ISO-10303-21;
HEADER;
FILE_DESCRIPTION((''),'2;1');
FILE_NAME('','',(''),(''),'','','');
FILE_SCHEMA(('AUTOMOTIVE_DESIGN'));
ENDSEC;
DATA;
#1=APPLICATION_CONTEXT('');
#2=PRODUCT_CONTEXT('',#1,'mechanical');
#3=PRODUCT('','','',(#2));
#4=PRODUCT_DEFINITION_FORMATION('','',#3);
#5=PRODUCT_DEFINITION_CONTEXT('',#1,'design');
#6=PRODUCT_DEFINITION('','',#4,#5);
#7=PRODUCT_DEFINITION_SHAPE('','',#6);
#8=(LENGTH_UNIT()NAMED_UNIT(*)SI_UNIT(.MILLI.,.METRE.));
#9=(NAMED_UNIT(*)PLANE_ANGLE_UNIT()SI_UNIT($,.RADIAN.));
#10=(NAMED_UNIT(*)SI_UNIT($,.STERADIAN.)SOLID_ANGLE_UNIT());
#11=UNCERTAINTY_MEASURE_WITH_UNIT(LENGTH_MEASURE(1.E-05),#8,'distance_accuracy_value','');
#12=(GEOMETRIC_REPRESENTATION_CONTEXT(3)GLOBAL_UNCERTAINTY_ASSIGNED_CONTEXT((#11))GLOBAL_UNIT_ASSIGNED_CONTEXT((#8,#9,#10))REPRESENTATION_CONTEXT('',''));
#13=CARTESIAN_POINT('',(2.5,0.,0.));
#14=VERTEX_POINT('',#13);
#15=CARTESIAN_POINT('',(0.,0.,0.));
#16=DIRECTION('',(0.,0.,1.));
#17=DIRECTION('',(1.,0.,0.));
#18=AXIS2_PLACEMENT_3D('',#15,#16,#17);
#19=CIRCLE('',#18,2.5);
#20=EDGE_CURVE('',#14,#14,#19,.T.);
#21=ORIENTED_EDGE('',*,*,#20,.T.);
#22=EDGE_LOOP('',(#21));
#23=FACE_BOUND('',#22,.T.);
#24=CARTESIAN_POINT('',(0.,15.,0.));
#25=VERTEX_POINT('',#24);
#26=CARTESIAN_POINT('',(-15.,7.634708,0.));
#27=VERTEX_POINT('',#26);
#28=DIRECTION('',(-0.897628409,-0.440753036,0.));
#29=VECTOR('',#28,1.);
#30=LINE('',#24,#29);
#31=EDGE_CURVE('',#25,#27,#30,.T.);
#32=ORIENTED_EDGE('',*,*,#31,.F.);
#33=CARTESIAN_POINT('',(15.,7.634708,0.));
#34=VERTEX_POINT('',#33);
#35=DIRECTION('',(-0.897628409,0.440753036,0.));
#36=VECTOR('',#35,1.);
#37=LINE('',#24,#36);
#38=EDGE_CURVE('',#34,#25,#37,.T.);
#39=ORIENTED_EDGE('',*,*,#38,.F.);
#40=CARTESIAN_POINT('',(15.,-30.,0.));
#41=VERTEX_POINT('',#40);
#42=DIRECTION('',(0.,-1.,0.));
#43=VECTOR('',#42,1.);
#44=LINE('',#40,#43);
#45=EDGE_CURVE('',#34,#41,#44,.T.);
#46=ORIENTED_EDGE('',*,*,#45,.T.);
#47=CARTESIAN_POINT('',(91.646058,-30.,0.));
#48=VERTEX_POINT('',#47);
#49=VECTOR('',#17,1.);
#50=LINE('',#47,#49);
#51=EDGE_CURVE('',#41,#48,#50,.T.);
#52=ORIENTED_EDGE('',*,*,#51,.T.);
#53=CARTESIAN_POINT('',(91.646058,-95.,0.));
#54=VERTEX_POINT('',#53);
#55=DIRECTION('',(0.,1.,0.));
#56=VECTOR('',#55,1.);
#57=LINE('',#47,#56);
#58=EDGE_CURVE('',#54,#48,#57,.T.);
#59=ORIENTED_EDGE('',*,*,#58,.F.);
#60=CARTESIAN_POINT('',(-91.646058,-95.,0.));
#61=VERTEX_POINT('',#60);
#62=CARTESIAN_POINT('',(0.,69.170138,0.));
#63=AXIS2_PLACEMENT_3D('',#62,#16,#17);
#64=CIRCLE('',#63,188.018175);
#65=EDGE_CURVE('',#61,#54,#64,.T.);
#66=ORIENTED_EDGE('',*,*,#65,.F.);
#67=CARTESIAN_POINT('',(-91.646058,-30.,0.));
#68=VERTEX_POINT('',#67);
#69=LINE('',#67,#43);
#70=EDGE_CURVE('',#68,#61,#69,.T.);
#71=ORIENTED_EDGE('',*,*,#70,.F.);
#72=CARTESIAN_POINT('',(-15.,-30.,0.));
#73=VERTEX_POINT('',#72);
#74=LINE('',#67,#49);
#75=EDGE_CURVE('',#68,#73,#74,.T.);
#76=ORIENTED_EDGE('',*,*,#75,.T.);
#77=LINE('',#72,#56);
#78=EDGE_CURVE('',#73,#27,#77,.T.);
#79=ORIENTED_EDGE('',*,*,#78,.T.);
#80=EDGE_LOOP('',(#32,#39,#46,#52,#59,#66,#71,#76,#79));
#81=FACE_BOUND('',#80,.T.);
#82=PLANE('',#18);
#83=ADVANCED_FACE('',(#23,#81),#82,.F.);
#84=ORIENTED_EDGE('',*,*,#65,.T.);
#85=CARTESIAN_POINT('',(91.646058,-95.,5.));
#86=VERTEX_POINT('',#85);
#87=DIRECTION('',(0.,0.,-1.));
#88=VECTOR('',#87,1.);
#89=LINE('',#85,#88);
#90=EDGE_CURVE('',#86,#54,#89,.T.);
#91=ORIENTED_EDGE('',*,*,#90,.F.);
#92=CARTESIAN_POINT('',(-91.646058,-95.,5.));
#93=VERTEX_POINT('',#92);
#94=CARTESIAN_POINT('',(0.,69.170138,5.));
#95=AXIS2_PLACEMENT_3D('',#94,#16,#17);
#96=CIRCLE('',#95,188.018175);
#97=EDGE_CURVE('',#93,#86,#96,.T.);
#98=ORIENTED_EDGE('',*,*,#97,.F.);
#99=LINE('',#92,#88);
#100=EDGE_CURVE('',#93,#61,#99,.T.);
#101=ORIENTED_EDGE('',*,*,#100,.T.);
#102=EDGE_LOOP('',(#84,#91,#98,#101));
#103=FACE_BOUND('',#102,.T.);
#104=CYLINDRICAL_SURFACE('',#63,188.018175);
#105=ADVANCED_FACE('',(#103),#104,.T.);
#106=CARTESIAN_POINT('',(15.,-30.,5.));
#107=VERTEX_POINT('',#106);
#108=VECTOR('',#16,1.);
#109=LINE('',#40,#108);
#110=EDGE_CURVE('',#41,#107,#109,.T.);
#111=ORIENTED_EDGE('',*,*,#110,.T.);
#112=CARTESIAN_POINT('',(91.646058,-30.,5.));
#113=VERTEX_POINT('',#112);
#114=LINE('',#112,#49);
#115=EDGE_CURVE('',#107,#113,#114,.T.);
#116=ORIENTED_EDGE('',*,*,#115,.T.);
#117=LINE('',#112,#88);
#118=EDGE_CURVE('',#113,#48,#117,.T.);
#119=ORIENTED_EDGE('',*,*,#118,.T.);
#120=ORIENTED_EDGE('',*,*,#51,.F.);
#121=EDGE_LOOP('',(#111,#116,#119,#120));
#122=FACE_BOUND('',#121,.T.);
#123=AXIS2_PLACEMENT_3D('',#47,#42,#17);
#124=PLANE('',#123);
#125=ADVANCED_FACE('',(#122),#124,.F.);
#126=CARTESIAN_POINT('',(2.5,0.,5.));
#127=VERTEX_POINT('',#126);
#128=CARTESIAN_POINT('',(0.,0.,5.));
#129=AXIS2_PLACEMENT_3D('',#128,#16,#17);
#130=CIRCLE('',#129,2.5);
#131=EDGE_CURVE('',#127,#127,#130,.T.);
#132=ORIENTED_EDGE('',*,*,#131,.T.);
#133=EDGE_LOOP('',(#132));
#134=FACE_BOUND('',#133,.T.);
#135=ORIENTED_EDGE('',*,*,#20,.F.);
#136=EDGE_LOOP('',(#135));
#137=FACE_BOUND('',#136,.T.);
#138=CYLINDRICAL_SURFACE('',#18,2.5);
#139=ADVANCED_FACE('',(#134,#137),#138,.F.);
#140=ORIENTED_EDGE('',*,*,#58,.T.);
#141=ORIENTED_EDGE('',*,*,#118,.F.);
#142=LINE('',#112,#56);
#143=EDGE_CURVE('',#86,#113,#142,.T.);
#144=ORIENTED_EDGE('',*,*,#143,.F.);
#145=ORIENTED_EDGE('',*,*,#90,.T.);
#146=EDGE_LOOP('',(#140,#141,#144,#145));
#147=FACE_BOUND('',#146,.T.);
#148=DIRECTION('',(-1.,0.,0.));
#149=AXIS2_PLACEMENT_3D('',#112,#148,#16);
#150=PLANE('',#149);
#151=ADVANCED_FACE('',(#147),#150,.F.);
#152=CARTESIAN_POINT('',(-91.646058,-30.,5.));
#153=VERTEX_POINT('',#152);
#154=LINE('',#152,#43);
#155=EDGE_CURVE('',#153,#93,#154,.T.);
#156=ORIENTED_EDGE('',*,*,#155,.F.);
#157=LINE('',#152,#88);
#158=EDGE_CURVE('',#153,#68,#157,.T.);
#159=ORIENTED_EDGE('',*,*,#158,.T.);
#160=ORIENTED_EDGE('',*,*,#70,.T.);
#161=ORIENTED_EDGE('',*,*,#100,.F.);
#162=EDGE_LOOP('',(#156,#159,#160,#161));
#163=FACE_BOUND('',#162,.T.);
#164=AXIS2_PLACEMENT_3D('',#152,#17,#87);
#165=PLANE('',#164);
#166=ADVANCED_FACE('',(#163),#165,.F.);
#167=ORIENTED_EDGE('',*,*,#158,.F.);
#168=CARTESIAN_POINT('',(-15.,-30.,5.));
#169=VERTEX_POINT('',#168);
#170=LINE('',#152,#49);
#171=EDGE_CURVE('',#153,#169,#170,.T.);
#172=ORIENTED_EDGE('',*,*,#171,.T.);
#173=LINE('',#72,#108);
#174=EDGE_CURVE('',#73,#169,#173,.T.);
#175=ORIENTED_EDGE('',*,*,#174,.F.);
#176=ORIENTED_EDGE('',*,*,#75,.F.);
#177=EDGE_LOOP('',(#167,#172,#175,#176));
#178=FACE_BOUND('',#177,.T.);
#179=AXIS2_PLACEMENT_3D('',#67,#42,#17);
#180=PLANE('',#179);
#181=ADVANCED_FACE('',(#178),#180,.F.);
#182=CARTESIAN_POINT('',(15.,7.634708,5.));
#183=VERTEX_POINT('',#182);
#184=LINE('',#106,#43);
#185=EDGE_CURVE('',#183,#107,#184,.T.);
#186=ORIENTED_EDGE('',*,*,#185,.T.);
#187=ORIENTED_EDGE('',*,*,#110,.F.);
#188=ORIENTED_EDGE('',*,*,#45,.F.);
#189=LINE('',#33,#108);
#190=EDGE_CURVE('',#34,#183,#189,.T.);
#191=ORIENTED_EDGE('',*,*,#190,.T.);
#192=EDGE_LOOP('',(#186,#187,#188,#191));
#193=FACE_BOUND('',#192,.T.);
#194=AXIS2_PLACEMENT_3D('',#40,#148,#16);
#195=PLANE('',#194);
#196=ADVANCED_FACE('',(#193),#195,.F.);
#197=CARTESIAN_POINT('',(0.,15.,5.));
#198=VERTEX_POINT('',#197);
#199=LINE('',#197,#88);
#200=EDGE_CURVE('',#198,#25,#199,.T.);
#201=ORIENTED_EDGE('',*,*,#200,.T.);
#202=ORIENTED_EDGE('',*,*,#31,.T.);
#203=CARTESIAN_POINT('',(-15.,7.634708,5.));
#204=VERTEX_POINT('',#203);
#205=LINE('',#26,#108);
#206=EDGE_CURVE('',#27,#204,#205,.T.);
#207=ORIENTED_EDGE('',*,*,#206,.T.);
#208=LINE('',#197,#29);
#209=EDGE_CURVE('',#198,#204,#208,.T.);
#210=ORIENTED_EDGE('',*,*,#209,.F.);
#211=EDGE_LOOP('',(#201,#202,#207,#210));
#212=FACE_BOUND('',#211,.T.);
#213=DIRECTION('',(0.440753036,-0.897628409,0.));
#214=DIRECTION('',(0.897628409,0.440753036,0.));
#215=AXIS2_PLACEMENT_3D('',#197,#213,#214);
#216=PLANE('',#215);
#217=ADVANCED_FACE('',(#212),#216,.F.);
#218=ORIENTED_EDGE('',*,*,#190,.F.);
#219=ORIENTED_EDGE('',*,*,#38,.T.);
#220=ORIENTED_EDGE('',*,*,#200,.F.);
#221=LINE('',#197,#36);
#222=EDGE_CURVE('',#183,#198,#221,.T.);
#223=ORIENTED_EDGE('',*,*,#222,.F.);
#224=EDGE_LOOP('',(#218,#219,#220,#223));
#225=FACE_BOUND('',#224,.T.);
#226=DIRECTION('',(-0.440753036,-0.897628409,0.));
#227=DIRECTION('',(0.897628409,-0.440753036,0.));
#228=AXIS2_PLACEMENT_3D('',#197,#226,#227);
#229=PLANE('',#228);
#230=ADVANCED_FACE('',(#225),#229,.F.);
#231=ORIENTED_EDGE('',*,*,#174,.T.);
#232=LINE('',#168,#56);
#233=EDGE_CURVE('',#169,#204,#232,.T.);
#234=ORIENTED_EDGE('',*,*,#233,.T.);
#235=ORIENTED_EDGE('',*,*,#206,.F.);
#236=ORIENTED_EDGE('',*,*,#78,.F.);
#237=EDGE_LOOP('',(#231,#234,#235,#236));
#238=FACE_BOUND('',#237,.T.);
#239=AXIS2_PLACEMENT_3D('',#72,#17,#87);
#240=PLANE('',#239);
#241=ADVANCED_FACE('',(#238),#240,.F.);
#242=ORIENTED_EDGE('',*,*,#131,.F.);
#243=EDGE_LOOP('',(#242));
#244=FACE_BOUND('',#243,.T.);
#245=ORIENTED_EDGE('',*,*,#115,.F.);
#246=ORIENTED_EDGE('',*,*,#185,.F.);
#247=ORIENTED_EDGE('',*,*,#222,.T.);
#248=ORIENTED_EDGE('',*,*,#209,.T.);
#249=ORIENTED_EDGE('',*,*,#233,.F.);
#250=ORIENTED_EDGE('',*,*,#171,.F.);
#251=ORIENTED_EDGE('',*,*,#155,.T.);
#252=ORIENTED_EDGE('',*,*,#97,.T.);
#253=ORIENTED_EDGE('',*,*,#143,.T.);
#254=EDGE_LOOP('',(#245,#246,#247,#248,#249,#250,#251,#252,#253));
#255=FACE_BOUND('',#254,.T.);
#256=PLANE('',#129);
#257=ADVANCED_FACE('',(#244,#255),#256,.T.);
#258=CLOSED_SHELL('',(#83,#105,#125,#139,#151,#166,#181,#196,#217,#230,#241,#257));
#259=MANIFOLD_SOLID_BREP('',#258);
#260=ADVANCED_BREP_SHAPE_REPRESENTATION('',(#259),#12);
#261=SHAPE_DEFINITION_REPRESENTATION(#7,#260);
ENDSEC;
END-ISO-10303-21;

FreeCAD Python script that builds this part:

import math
import FreeCAD as App
import Part
import Sketcher

V = App.Vector
Q = App.Units.Quantity


def add_polygon(sketch, points):
    """Adds a closed chain of lines whose ends are joined by coincident constraints."""
    first, n = sketch.GeometryCount, len(points)
    for a, b in zip(points, points[1:] + points[:1]):
        sketch.addGeometry(Part.LineSegment(App.Vector(*a, 0), App.Vector(*b, 0)), False)
    for i in range(n):
        sketch.addConstraint(Sketcher.Constraint("Coincident", first + i, 2, first + (i + 1) % n, 1))

doc = App.newDocument("Part")
body = doc.addObject("PartDesign::Body", "Body")

# Sketch on XY plane
sketch1 = doc.addObject("Sketcher::SketchObject", "Sketch")
body.addObject(sketch1)
sketch1.AttachmentSupport = (doc.XY_Plane, [""])
sketch1.MapMode = "FlatFace"
add_polygon(sketch1, [(-92, -95), (92, -95), (92, -30), (0, 15), (-92, -30)])  # lines 0-4
sketch1.addConstraint([
    Sketcher.Constraint("Horizontal", 0),
    Sketcher.Constraint("Vertical", 1),
    Sketcher.Constraint("Vertical", 4),
    Sketcher.Constraint("Symmetric", 1, 2, 3, 2, -2),
    Sketcher.Constraint("PointOnObject", 2, 2, -2),
    Sketcher.Constraint("DistanceY", 1, 1, 1, 2, Q("65 mm")),
    Sketcher.Constraint("DistanceY", 0, 2, -1, 1, Q("95 mm")),
    Sketcher.Constraint("DistanceY", -1, 1, 2, 2, Q("15 mm")),
    Sketcher.Constraint("DistanceX", 0, 1, 0, 2, Q("183.292117 mm")),
])
pad1 = doc.addObject("PartDesign::Pad", "Pad")
body.addObject(pad1)
pad1.Profile = sketch1
pad1.Length = 5

# Sketch on XY plane
sketch2 = doc.addObject("Sketcher::SketchObject", "Sketch001")
body.addObject(sketch2)
sketch2.AttachmentSupport = (doc.XY_Plane, [""])
sketch2.MapMode = "FlatFace"
sketch2.AttachmentOffset = App.Placement(V(0, 0, 5), App.Rotation())
sketch2.addGeometry(Part.Circle(V(0, 0, 0), V(0, 0, 1), 2.5), False)
sketch2.addConstraint([
    Sketcher.Constraint("Coincident", 0, 3, -1, 1),
    Sketcher.Constraint("Diameter", 0, Q("5 mm")),
])
pocket1 = doc.addObject("PartDesign::Pocket", "Pocket")
body.addObject(pocket1)
pocket1.Profile = sketch2
pocket1.Length = 5

# Sketch on XY plane
sketch3 = doc.addObject("Sketcher::SketchObject", "Sketch002")
body.addObject(sketch3)
sketch3.AttachmentSupport = (doc.XY_Plane, [""])
sketch3.MapMode = "FlatFace"
sketch3.AttachmentOffset = App.Placement(V(0, 0, 5), App.Rotation())
add_polygon(sketch3, [(15, -30), (92, -30), (15, 8)])  # lines 0-2
add_polygon(sketch3, [(-15, 8), (-92, -30), (-15, -30)])  # lines 3-5
sketch3.addConstraint([
    Sketcher.Constraint("Horizontal", 0),
    Sketcher.Constraint("Vertical", 2),
    Sketcher.Constraint("Horizontal", 4),
    Sketcher.Constraint("Vertical", 5),
    Sketcher.Constraint("Symmetric", 0, 2, 3, 2, -2),
    Sketcher.Constraint("Symmetric", 1, 2, 5, 2, -2),
    Sketcher.Constraint("DistanceY", 0, 2, -1, 1, Q("30 mm")),
    Sketcher.Constraint("DistanceX", -1, 1, 1, 2, Q("15 mm")),
    Sketcher.Constraint("DistanceX", 0, 1, 0, 2, Q("76.646058 mm")),
    Sketcher.Constraint("Distance", 1, Q("85.387291 mm")),
])
pocket2 = doc.addObject("PartDesign::Pocket", "Pocket001")
body.addObject(pocket2)
pocket2.Profile = sketch3
pocket2.Length = 5

# Sketch on XY plane
sketch4 = doc.addObject("Sketcher::SketchObject", "Sketch003")
body.addObject(sketch4)
sketch4.AttachmentSupport = (doc.XY_Plane, [""])
sketch4.MapMode = "FlatFace"
sketch4.AttachmentOffset = App.Placement(V(0, 0, 5), App.Rotation())
sketch4.addGeometry([
    Part.LineSegment(V(92, -95, 0), V(-92, -95, 0)),
    Part.ArcOfCircle(Part.Circle(V(0, 69, 0), V(0, 0, 1), 188), math.radians(-119), math.radians(-61)),
], False)
sketch4.addConstraint([
    Sketcher.Constraint("Coincident", 0, 1, 1, 2),
    Sketcher.Constraint("Coincident", 1, 1, 0, 2),
    Sketcher.Constraint("Horizontal", 0),
    Sketcher.Constraint("PointOnObject", 1, 3, -2),
    Sketcher.Constraint("DistanceY", 0, 1, -1, 1, Q("95 mm")),
    Sketcher.Constraint("Radius", 1, Q("188.018175 mm")),
    Sketcher.Constraint("DistanceX", 0, 2, 0, 1, Q("183.292117 mm")),
])
pad2 = doc.addObject("PartDesign::Pad", "Pad001")
body.addObject(pad2)
pad2.Profile = sketch4
pad2.Length = 5
pad2.Reversed = True

doc.recompute()
